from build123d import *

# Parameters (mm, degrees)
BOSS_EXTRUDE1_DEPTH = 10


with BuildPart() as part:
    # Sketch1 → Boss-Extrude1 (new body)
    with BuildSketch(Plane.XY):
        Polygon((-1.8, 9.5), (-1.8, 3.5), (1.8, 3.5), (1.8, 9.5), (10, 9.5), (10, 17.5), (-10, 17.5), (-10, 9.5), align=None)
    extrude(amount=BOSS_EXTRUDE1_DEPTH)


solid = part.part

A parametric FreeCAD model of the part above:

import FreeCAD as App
import Part
import Sketcher
from FreeCAD import Vector


def add_polygon(sketch, points):
    """Adds a closed chain of lines whose ends are joined by coincident constraints."""
    first, n = sketch.GeometryCount, len(points)
    for a, b in zip(points, points[1:] + points[:1]):
        sketch.addGeometry(Part.LineSegment(App.Vector(*a, 0), App.Vector(*b, 0)), False)
    for i in range(n):
        sketch.addConstraint(Sketcher.Constraint("Coincident", first + i, 2, first + (i + 1) % n, 1))

doc = App.newDocument("Part")
body = doc.addObject("PartDesign::Body", "Body")

# Sketch on XY plane
sketch1 = body.newObject("Sketcher::SketchObject", "Sketch")
sketch1.AttachmentSupport = (doc.getObject("XY_Plane"), [""])
sketch1.MapMode = "FlatFace"
add_polygon(sketch1, [(-1.8, 9.5), (-1.8, 3.5), (1.8, 3.5), (1.8, 9.5), (10, 9.5), (10, 17.5), (-10, 17.5), (-10, 9.5)])  # lines 0-7
sketch1.addConstraint([
    Sketcher.Constraint("Vertical", 0),
    Sketcher.Constraint("Horizontal", 1),
    Sketcher.Constraint("Vertical", 2),
    Sketcher.Constraint("Horizontal", 3),
    Sketcher.Constraint("Vertical", 4),
    Sketcher.Constraint("Horizontal", 5),
    Sketcher.Constraint("Vertical", 6),
    Sketcher.Constraint("Horizontal", 7),
    Sketcher.Constraint("Symmetric", 3, 2, 6, 2, -2),
    Sketcher.Constraint("Equal", 3, 7),
    Sketcher.Constraint("DistanceX", 5, 2, 5, 1, 20.0),
    Sketcher.Constraint("DistanceY", 0, 2, 0, 1, 6.0),
    Sketcher.Constraint("DistanceY", 4, 1, 4, 2, 8.0),
    Sketcher.Constraint("DistanceX", 1, 1, 1, 2, 3.6),
    Sketcher.Constraint("DistanceY", -1, 1, 0, 2, 3.5),
])
pad1 = body.newObject("PartDesign::Pad", "Pad")
pad1.Profile = sketch1
pad1.Length = 10

doc.recompute()
